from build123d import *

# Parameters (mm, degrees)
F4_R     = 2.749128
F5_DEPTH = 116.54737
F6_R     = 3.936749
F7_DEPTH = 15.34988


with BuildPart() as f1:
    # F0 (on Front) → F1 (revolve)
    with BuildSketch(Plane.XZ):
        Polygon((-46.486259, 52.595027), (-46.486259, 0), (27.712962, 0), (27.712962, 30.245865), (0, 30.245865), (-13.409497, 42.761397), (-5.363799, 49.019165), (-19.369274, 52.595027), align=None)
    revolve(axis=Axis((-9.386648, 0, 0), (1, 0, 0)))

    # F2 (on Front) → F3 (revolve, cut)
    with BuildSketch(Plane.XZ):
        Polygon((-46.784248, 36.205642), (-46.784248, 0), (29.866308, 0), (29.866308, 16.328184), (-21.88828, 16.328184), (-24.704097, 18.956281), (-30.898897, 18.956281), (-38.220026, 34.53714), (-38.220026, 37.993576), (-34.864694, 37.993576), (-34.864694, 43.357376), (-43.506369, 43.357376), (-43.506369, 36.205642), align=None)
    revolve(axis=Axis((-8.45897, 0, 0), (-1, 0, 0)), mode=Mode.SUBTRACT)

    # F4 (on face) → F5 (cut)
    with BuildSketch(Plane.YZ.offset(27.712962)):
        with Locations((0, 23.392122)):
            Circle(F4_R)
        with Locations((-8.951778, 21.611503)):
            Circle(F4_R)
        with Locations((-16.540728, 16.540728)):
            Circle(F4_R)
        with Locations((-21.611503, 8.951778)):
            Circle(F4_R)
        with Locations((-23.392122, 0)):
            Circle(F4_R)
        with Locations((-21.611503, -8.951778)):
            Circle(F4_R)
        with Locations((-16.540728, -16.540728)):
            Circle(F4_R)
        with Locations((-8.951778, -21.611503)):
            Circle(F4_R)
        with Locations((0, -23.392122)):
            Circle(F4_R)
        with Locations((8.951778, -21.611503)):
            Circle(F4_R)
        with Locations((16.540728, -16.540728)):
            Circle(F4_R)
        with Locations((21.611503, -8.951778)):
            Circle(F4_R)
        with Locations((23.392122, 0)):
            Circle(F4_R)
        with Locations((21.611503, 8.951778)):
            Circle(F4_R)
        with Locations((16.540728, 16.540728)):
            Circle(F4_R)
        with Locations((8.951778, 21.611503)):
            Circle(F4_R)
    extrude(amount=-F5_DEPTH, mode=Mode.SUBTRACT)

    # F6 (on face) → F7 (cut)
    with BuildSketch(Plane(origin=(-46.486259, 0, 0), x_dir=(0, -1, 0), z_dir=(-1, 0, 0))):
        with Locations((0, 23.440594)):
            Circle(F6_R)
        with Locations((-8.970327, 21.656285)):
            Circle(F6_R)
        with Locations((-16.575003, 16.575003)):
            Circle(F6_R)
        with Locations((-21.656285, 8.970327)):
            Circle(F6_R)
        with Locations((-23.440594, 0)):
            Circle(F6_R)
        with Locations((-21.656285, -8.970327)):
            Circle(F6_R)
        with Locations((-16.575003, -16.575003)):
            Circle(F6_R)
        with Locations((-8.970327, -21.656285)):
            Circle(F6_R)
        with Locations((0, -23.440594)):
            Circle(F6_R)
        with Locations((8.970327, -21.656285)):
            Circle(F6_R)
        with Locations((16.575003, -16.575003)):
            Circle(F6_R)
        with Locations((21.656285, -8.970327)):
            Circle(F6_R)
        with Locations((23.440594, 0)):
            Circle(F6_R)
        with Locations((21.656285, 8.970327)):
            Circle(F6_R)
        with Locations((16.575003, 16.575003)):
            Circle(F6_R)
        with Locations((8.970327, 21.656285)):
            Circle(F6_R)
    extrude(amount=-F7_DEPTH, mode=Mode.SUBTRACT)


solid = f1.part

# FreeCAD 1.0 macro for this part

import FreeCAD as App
import Part
import Sketcher
Q = App.Units.Quantity


def add_polygon(sketch, points):
    """Adds a closed chain of lines whose ends are joined by coincident constraints."""
    first, n = sketch.GeometryCount, len(points)
    for a, b in zip(points, points[1:] + points[:1]):
        sketch.addGeometry(Part.LineSegment(App.Vector(*a, 0), App.Vector(*b, 0)), False)
    for i in range(n):
        sketch.addConstraint(Sketcher.Constraint("Coincident", first + i, 2, first + (i + 1) % n, 1))

doc = App.newDocument("Part")
params = doc.addObject("Spreadsheet::Sheet", "Params")
for row, (alias, value) in enumerate([
    ("revolution_angle", "360 deg"),
    ("groove_angle", "360 deg"),
    ("pocket1_length", "116.54737 mm"),
    ("pocket2_length", "15.34988 mm"),
], start=1):
    params.set(f"A{row}", alias)
    params.set(f"B{row}", "=" + value)
    params.setAlias(f"B{row}", alias)

body = doc.addObject("PartDesign::Body", "Body")

sketch1 = doc.addObject("Sketcher::SketchObject", "Sketch")
body.addObject(sketch1)
sketch1.AttachmentSupport = (doc.XZ_Plane, [""])
sketch1.MapMode = "FlatFace"
add_polygon(sketch1, [(-46.486259, 52.595027), (-46.486259, 0), (27.712962, 0), (27.712962, 30.245865), (0, 30.245865), (-13.409497, 42.761397), (-5.363799, 49.019165), (-19.369274, 52.595027)])
sketch1.addConstraint([
    Sketcher.Constraint("Vertical", 0),
    Sketcher.Constraint("Horizontal", 1),
    Sketcher.Constraint("Vertical", 2),
    Sketcher.Constraint("Horizontal", 3),
    Sketcher.Constraint("Horizontal", 7),
    Sketcher.Constraint("PointOnObject", 0, 2, -1),
    Sketcher.Constraint("PointOnObject", 3, 2, -2),
    Sketcher.Constraint("DistanceX", 1, 1, 1, 2, Q("74.199221 mm")),
    Sketcher.Constraint("DistanceX", 5, 2, -1, 1, Q("5.363799 mm")),
    Sketcher.Constraint("DistanceY", 3, 2, 5, 2, Q("18.7733 mm")),
    Sketcher.Constraint("Distance", 4, Q("18.342659 mm")),
    Sketcher.Constraint("Distance", 6, Q("14.454761 mm")),
    Sketcher.Constraint("DistanceX", 3, 2, 3, 1, Q("27.712962 mm")),
    Sketcher.Constraint("DistanceX", 7, 2, 7, 1, Q("27.116985 mm")),
    Sketcher.Constraint("DistanceY", 0, 2, 0, 1, Q("52.595027 mm")),
    Sketcher.Constraint("DistanceX", 4, 2, 2, 2, Q("41.122459 mm")),
])
revolution = doc.addObject("PartDesign::Revolution", "Revolution")
body.addObject(revolution)
revolution.Profile = sketch1
revolution.ReferenceAxis = (sketch1, ["H_Axis"])
revolution.setExpression("Angle", "Params.revolution_angle")

sketch2 = doc.addObject("Sketcher::SketchObject", "Sketch001")
body.addObject(sketch2)
sketch2.AttachmentSupport = (doc.XZ_Plane, [""])
sketch2.MapMode = "FlatFace"
add_polygon(sketch2, [(-46.784248, 36.205642), (-46.784248, 0), (29.866308, 0), (29.866308, 16.328184), (-21.88828, 16.328184), (-24.704097, 18.956281), (-30.898897, 18.956281), (-38.220026, 34.53714), (-38.220026, 37.993576), (-34.864694, 37.993576), (-34.864694, 43.357376), (-43.506369, 43.357376), (-43.506369, 36.205642)])
sketch2.addConstraint([
    Sketcher.Constraint("Vertical", 0),
    Sketcher.Constraint("Horizontal", 1),
    Sketcher.Constraint("Vertical", 2),
    Sketcher.Constraint("Horizontal", 3),
    Sketcher.Constraint("Horizontal", 5),
    Sketcher.Constraint("Vertical", 7),
    Sketcher.Constraint("Horizontal", 8),
    Sketcher.Constraint("Vertical", 9),
    Sketcher.Constraint("Horizontal", 10),
    Sketcher.Constraint("Vertical", 11),
    Sketcher.Constraint("Horizontal", 12),
    Sketcher.Constraint("PointOnObject", 0, 2, -1),
    Sketcher.Constraint("DistanceX", 5, 2, 5, 1, Q("6.1948 mm")),
    Sketcher.Constraint("DistanceY", 9, 1, 9, 2, Q("5.3638 mm")),
    Sketcher.Constraint("DistanceX", 8, 1, 8, 2, Q("3.355332 mm")),
    Sketcher.Constraint("DistanceX", 12, 2, 12, 1, Q("3.277879 mm")),
    Sketcher.Constraint("DistanceY", 0, 2, 0, 1, Q("36.205642 mm")),
    Sketcher.Constraint("DistanceY", 6, 2, 11, 2, Q("1.668502 mm")),
    Sketcher.Constraint("Distance", 6, Q("17.215171 mm")),
    Sketcher.Constraint("DistanceX", 1, 1, 1, 2, Q("76.650556 mm")),
    Sketcher.Constraint("DistanceX", 3, 2, 3, 1, Q("51.754588 mm")),
    Sketcher.Constraint("DistanceX", 10, 2, 10, 1, Q("8.641675 mm")),
    Sketcher.Constraint("DistanceY", 2, 1, 2, 2, Q("16.328184 mm")),
    Sketcher.Constraint("DistanceY", 7, 1, 7, 2, Q("3.456436 mm")),
    Sketcher.Constraint("DistanceX", -1, 1, 1, 2, Q("29.866308 mm")),
    Sketcher.Constraint("DistanceY", -1, 1, 4, 2, Q("18.956281 mm")),
])
groove = doc.addObject("PartDesign::Groove", "Groove")
body.addObject(groove)
groove.Profile = sketch2
groove.ReferenceAxis = (sketch2, ["H_Axis"])
groove.setExpression("Angle", "Params.groove_angle")

sketch3 = doc.addObject("Sketcher::SketchObject", "Sketch002")
body.addObject(sketch3)
sketch3.AttachmentSupport = (doc.YZ_Plane, [""])
sketch3.MapMode = "FlatFace"
sketch3.AttachmentOffset = App.Placement(App.Vector(0, 0, 27.712962), App.Rotation())
sketch3.addGeometry([
    Part.Circle(App.Vector(0, 23.392122, 0), App.Vector(0, 0, 1), 2.749128),
    Part.Circle(App.Vector(-8.951778, 21.611503, 0), App.Vector(0, 0, 1), 2.749128),
    Part.Circle(App.Vector(-16.540728, 16.540728, 0), App.Vector(0, 0, 1), 2.749128),
    Part.Circle(App.Vector(-21.611503, 8.951778, 0), App.Vector(0, 0, 1), 2.749128),
    Part.Circle(App.Vector(-23.392122, 0, 0), App.Vector(0, 0, 1), 2.749128),
    Part.Circle(App.Vector(-21.611503, -8.951778, 0), App.Vector(0, 0, 1), 2.749128),
    Part.Circle(App.Vector(-16.540728, -16.540728, 0), App.Vector(0, 0, 1), 2.749128),
    Part.Circle(App.Vector(-8.951778, -21.611503, 0), App.Vector(0, 0, 1), 2.749128),
    Part.Circle(App.Vector(0, -23.392122, 0), App.Vector(0, 0, 1), 2.749128),
    Part.Circle(App.Vector(8.951778, -21.611503, 0), App.Vector(0, 0, 1), 2.749128),
    Part.Circle(App.Vector(16.540728, -16.540728, 0), App.Vector(0, 0, 1), 2.749128),
    Part.Circle(App.Vector(21.611503, -8.951778, 0), App.Vector(0, 0, 1), 2.749128),
    Part.Circle(App.Vector(23.392122, 0, 0), App.Vector(0, 0, 1), 2.749128),
    Part.Circle(App.Vector(21.611503, 8.951778, 0), App.Vector(0, 0, 1), 2.749128),
    Part.Circle(App.Vector(16.540728, 16.540728, 0), App.Vector(0, 0, 1), 2.749128),
    Part.Circle(App.Vector(8.951778, 21.611503, 0), App.Vector(0, 0, 1), 2.749128),
], False)
sketch3.addConstraint([
    Sketcher.Constraint("Equal", 0, 1),
    Sketcher.Constraint("Equal", 1, 2),
    Sketcher.Constraint("Equal", 2, 3),
    Sketcher.Constraint("Equal", 3, 4),
    Sketcher.Constraint("Equal", 4, 5),
    Sketcher.Constraint("Equal", 5, 6),
    Sketcher.Constraint("Equal", 6, 7),
    Sketcher.Constraint("Equal", 7, 8),
    Sketcher.Constraint("Equal", 8, 9),
    Sketcher.Constraint("Equal", 9, 10),
    Sketcher.Constraint("Equal", 10, 11),
    Sketcher.Constraint("Equal", 11, 12),
    Sketcher.Constraint("Equal", 12, 13),
    Sketcher.Constraint("Equal", 13, 14),
    Sketcher.Constraint("Equal", 14, 15),
    Sketcher.Constraint("Symmetric", 0, 3, 8, 3, -1, 1),
    Sketcher.Constraint("Symmetric", 1, 3, 9, 3, -1, 1),
    Sketcher.Constraint("Symmetric", 2, 3, 10, 3, -1, 1),
    Sketcher.Constraint("Symmetric", 3, 3, 11, 3, -1, 1),
    Sketcher.Constraint("Symmetric", 4, 3, 12, 3, -1, 1),
    Sketcher.Constraint("Symmetric", 5, 3, 13, 3, -1, 1),
    Sketcher.Constraint("Symmetric", 6, 3, 14, 3, -1, 1),
    Sketcher.Constraint("Symmetric", 7, 3, 15, 3, -1, 1),
    Sketcher.Constraint("Symmetric", 7, 3, 9, 3, -2),
    Sketcher.Constraint("Symmetric", 6, 3, 10, 3, -2),
    Sketcher.Constraint("Symmetric", 5, 3, 11, 3, -2),
    Sketcher.Constraint("PointOnObject", 0, 3, -2),
    Sketcher.Constraint("PointOnObject", 4, 3, -1),
    Sketcher.Constraint("Diameter", 0, Q("5.498256 mm")),
    Sketcher.Constraint("DistanceY", 5, 3, 0, 3, Q("32.3439 mm")),
    Sketcher.Constraint("DistanceX", 4, 3, 9, 3, Q("32.3439 mm")),
    Sketcher.Constraint("DistanceX", 2, 3, -1, 1, Q("16.540728 mm")),
    Sketcher.Constraint("DistanceY", -1, 1, 2, 3, Q("16.540728 mm")),
    Sketcher.Constraint("DistanceY", 1, 3, 0, 3, Q("1.780619 mm")),
    Sketcher.Constraint("DistanceX", 2, 3, 1, 3, Q("7.58895 mm")),
    Sketcher.Constraint("DistanceY", 3, 3, 2, 3, Q("7.58895 mm")),
    Sketcher.Constraint("DistanceX", 4, 3, 3, 3, Q("1.780619 mm")),
])
pocket1 = doc.addObject("PartDesign::Pocket", "Pocket")
body.addObject(pocket1)
pocket1.Profile = sketch3
pocket1.setExpression("Length", "Params.pocket1_length")

sketch4 = doc.addObject("Sketcher::SketchObject", "Sketch003")
body.addObject(sketch4)
sketch4.AttachmentSupport = (doc.YZ_Plane, [""])
sketch4.MapMode = "FlatFace"
sketch4.AttachmentOffset = App.Placement(App.Vector(0, 0, -46.486259), App.Rotation())
sketch4.addGeometry([
    Part.Circle(App.Vector(0, 23.440594, 0), App.Vector(0, 0, 1), 3.936749),
    Part.Circle(App.Vector(8.970327, 21.656285, 0), App.Vector(0, 0, 1), 3.936749),
    Part.Circle(App.Vector(16.575003, 16.575003, 0), App.Vector(0, 0, 1), 3.936749),
    Part.Circle(App.Vector(21.656285, 8.970327, 0), App.Vector(0, 0, 1), 3.936749),
    Part.Circle(App.Vector(23.440594, 0, 0), App.Vector(0, 0, 1), 3.936749),
    Part.Circle(App.Vector(21.656285, -8.970327, 0), App.Vector(0, 0, 1), 3.936749),
    Part.Circle(App.Vector(16.575003, -16.575003, 0), App.Vector(0, 0, 1), 3.936749),
    Part.Circle(App.Vector(8.970327, -21.656285, 0), App.Vector(0, 0, 1), 3.936749),
    Part.Circle(App.Vector(0, -23.440594, 0), App.Vector(0, 0, 1), 3.936749),
    Part.Circle(App.Vector(-8.970327, -21.656285, 0), App.Vector(0, 0, 1), 3.936749),
    Part.Circle(App.Vector(-16.575003, -16.575003, 0), App.Vector(0, 0, 1), 3.936749),
    Part.Circle(App.Vector(-21.656285, -8.970327, 0), App.Vector(0, 0, 1), 3.936749),
    Part.Circle(App.Vector(-23.440594, 0, 0), App.Vector(0, 0, 1), 3.936749),
    Part.Circle(App.Vector(-21.656285, 8.970327, 0), App.Vector(0, 0, 1), 3.936749),
    Part.Circle(App.Vector(-16.575003, 16.575003, 0), App.Vector(0, 0, 1), 3.936749),
    Part.Circle(App.Vector(-8.970327, 21.656285, 0), App.Vector(0, 0, 1), 3.936749),
], False)
sketch4.addConstraint([
    Sketcher.Constraint("Equal", 0, 1),
    Sketcher.Constraint("Equal", 1, 2),
    Sketcher.Constraint("Equal", 2, 3),
    Sketcher.Constraint("Equal", 3, 4),
    Sketcher.Constraint("Equal", 4, 5),
    Sketcher.Constraint("Equal", 5, 6),
    Sketcher.Constraint("Equal", 6, 7),
    Sketcher.Constraint("Equal", 7, 8),
    Sketcher.Constraint("Equal", 8, 9),
    Sketcher.Constraint("Equal", 9, 10),
    Sketcher.Constraint("Equal", 10, 11),
    Sketcher.Constraint("Equal", 11, 12),
    Sketcher.Constraint("Equal", 12, 13),
    Sketcher.Constraint("Equal", 13, 14),
    Sketcher.Constraint("Equal", 14, 15),
    Sketcher.Constraint("Symmetric", 0, 3, 8, 3, -1, 1),
    Sketcher.Constraint("Symmetric", 1, 3, 9, 3, -1, 1),
    Sketcher.Constraint("Symmetric", 2, 3, 10, 3, -1, 1),
    Sketcher.Constraint("Symmetric", 3, 3, 11, 3, -1, 1),
    Sketcher.Constraint("Symmetric", 4, 3, 12, 3, -1, 1),
    Sketcher.Constraint("Symmetric", 5, 3, 13, 3, -1, 1),
    Sketcher.Constraint("Symmetric", 6, 3, 14, 3, -1, 1),
    Sketcher.Constraint("Symmetric", 7, 3, 15, 3, -1, 1),
    Sketcher.Constraint("Symmetric", 7, 3, 9, 3, -2),
    Sketcher.Constraint("Symmetric", 6, 3, 10, 3, -2),
    Sketcher.Constraint("Symmetric", 5, 3, 11, 3, -2),
    Sketcher.Constraint("PointOnObject", 0, 3, -2),
    Sketcher.Constraint("PointOnObject", 4, 3, -1),
    Sketcher.Constraint("Diameter", 0, Q("7.873498 mm")),
    Sketcher.Constraint("DistanceY", 1, 3, 0, 3, Q("1.784309 mm")),
    Sketcher.Constraint("DistanceY", 2, 3, 0, 3, Q("6.865591 mm")),
    Sketcher.Constraint("DistanceX", 1, 3, 3, 3, Q("12.685958 mm")),
    Sketcher.Constraint("DistanceY", 3, 3, 1, 3, Q("12.685958 mm")),
    Sketcher.Constraint("DistanceX", 3, 3, 4, 3, Q("1.784309 mm")),
    Sketcher.Constraint("DistanceX", 2, 3, 4, 3, Q("6.865591 mm")),
    Sketcher.Constraint("DistanceY", 5, 3, 2, 3, Q("25.54533 mm")),
    Sketcher.Constraint("DistanceX", 9, 3, 6, 3, Q("25.54533 mm")),
])
pocket2 = doc.addObject("PartDesign::Pocket", "Pocket001")
body.addObject(pocket2)
pocket2.Profile = sketch4
pocket2.setExpression("Length", "Params.pocket2_length")
pocket2.Reversed = True

doc.recompute()
